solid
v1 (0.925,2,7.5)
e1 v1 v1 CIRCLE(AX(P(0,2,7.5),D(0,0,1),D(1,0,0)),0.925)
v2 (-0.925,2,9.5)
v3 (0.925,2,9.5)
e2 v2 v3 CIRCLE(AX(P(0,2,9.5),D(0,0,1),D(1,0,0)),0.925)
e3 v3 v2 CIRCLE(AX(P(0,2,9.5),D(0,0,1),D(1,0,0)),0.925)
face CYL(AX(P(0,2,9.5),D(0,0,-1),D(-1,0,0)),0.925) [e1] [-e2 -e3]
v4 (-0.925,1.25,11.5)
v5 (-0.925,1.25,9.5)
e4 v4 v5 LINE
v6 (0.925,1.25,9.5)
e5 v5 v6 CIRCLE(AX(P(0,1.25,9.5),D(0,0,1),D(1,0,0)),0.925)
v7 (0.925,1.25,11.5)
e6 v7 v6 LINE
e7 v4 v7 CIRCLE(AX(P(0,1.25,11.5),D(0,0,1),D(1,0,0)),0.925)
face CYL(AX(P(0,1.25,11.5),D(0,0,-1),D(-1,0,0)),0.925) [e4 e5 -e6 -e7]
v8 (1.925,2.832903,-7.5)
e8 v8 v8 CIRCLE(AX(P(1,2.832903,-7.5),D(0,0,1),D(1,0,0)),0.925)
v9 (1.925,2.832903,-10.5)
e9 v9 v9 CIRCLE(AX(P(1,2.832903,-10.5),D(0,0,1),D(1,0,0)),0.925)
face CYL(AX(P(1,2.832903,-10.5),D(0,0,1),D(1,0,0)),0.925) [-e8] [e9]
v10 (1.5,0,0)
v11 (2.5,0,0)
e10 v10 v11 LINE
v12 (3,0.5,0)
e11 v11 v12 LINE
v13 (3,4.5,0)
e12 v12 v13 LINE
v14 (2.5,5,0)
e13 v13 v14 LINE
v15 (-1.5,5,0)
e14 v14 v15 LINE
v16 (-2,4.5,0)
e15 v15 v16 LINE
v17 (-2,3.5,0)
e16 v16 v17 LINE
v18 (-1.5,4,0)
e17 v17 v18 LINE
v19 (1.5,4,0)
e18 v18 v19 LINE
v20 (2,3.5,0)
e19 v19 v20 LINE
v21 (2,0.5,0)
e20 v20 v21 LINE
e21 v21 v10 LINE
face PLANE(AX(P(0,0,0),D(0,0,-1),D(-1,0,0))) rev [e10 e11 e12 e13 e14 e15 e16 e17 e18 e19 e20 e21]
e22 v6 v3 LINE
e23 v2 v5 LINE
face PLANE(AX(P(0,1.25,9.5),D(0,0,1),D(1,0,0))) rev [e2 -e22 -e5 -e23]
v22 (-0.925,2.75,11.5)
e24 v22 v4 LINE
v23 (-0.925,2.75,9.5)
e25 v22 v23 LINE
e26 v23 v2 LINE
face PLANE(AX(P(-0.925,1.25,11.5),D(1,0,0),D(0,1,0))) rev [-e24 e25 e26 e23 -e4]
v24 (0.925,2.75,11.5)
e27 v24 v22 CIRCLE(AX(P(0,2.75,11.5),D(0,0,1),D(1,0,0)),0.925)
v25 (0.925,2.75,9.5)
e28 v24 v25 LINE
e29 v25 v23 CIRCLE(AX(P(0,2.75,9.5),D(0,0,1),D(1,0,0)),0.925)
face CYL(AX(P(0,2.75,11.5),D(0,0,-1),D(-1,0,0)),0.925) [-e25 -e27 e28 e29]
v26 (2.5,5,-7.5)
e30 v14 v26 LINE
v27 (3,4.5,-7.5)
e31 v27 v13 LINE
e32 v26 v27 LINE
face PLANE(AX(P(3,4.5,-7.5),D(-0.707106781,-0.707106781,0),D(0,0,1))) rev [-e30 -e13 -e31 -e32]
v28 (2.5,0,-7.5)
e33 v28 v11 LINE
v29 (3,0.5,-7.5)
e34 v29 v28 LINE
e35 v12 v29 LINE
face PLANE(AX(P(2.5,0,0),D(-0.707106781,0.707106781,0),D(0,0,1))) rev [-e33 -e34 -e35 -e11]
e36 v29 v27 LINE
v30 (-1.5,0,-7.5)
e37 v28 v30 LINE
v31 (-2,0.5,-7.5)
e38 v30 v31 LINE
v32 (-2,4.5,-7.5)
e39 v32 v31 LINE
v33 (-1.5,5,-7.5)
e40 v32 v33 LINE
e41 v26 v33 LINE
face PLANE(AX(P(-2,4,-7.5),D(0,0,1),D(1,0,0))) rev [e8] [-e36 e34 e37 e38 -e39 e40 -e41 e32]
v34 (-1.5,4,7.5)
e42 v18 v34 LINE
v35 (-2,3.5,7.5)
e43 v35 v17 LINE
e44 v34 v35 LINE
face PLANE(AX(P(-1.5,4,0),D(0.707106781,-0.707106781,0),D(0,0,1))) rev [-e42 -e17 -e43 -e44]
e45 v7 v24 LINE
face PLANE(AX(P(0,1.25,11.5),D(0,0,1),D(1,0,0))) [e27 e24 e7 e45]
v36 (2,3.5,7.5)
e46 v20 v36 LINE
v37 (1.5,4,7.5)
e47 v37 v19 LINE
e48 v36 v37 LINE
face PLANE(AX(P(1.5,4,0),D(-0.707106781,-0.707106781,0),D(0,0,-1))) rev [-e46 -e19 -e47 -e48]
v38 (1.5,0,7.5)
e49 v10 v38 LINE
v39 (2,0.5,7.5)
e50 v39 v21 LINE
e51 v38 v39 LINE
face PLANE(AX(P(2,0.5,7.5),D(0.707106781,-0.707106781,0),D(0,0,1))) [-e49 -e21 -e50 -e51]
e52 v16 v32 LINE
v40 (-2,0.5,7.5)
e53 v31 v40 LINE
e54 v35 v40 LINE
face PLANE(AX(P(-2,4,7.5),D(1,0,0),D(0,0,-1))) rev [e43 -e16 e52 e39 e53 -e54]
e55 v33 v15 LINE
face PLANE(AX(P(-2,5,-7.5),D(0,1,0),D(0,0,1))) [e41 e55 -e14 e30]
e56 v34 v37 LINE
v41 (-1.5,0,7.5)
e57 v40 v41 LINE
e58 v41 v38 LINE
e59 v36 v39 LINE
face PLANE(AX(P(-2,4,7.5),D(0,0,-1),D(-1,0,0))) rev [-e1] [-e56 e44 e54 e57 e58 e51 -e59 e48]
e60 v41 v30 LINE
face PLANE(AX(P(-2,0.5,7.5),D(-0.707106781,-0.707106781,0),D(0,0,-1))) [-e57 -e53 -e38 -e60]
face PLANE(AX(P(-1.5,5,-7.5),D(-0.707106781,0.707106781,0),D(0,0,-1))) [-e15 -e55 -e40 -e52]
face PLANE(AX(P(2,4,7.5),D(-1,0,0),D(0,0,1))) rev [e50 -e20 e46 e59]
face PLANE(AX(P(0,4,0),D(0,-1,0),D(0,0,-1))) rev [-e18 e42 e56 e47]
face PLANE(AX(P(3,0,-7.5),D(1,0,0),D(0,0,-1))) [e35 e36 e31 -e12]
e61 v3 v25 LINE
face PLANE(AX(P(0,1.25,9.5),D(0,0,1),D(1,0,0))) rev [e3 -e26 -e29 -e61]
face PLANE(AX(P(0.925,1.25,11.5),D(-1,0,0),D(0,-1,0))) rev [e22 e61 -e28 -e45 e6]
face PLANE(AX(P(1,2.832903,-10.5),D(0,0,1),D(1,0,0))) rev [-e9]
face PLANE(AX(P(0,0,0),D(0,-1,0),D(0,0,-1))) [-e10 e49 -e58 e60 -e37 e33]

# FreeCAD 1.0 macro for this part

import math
import FreeCAD as App
import Part
import Sketcher
from FreeCAD import Vector
Q = App.Units.Quantity


def edges_at(feature, points):
    """Names of the edges that pass closest to the given points."""
    edges = feature.Shape.Edges
    near = lambda p: min(range(len(edges)), key=lambda i: edges[i].distToShape(Part.Vertex(*p))[0])
    return sorted({f"Edge{near(p) + 1}" for p in points})

doc = App.newDocument("Part")
body = doc.addObject("PartDesign::Body", "Body")

sketch1 = body.newObject("Sketcher::SketchObject", "Sketch")
sketch1.AttachmentSupport = (doc.getObject("XZ_Plane"), [""])
sketch1.MapMode = "FlatFace"
sketch1.addGeometry([
    Part.LineSegment(Vector(-2, -7.5, 0), Vector(-2, 7.5, 0)),
    Part.LineSegment(Vector(-2, 7.5, 0), Vector(2, 7.5, 0)),
    Part.LineSegment(Vector(2, 7.5, 0), Vector(2, -7.5, 0)),
    Part.LineSegment(Vector(2, -7.5, 0), Vector(-2, -7.5, 0)),
], False)
sketch1.addConstraint([
    Sketcher.Constraint("Coincident", 0, 2, 1, 1),
    Sketcher.Constraint("Coincident", 1, 2, 2, 1),
    Sketcher.Constraint("Coincident", 2, 2, 3, 1),
    Sketcher.Constraint("Coincident", 3, 2, 0, 1),
    Sketcher.Constraint("Vertical", 0),
    Sketcher.Constraint("Horizontal", 1),
    Sketcher.Constraint("Vertical", 2),
    Sketcher.Constraint("Horizontal", 3),
    Sketcher.Constraint("Symmetric", 0, 2, 2, 2, -1, 1),
    Sketcher.Constraint("DistanceX", 1, 1, 1, 2, Q("4 mm")),
    Sketcher.Constraint("DistanceY", 0, 1, 0, 2, Q("15 mm")),
])
pad1 = body.newObject("PartDesign::Pad", "Pad")
pad1.Profile = sketch1
pad1.Length = 4
pad1.Reversed = True

sketch2 = body.newObject("Sketcher::SketchObject", "Sketch001")
sketch2.AttachmentSupport = (doc.getObject("XY_Plane"), [""])
sketch2.MapMode = "FlatFace"
sketch2.AttachmentOffset = App.Placement(Vector(0, 0, 7.5), App.Rotation())
sketch2.addGeometry(Part.Circle(Vector(0, 2, 0), Vector(0, 0, 1), 0.9), False)
sketch2.addConstraint([
    Sketcher.Constraint("PointOnObject", 0, 3, -2),
    Sketcher.Constraint("Diameter", 0, Q("1.85 mm")),
    Sketcher.Constraint("DistanceY", -1, 1, 0, 3, Q("2 mm")),
])
pad2 = body.newObject("PartDesign::Pad", "Pad001")
pad2.Profile = sketch2
pad2.Length = 2

sketch3 = body.newObject("Sketcher::SketchObject", "Sketch002")
sketch3.AttachmentSupport = (doc.getObject("XY_Plane"), [""])
sketch3.MapMode = "FlatFace"
sketch3.AttachmentOffset = App.Placement(Vector(0, 0, 9.5), App.Rotation())
sketch3.addGeometry([
    Part.LineSegment(Vector(-0.9, 2.8, 0), Vector(-0.9, 1.2, 0)),
    Part.ArcOfCircle(Part.Circle(Vector(0, 1.2, 0), Vector(0, 0, 1), 0.9), math.radians(180), math.radians(360)),
    Part.LineSegment(Vector(0.9, 1.2, 0), Vector(0.9, 2.8, 0)),
    Part.ArcOfCircle(Part.Circle(Vector(0, 2.8, 0), Vector(0, 0, 1), 0.9), math.radians(0), math.radians(180)),
], False)
sketch3.addConstraint([
    Sketcher.Constraint("Tangent", 0, 2, 1, 1),
    Sketcher.Constraint("Tangent", 1, 2, 2, 1),
    Sketcher.Constraint("Tangent", 2, 2, 3, 1),
    Sketcher.Constraint("Tangent", 3, 2, 0, 1),
    Sketcher.Constraint("Vertical", 0),
    Sketcher.Constraint("Vertical", 2),
    Sketcher.Constraint("PointOnObject", 1, 3, -2),
    Sketcher.Constraint("DistanceY", 0, 2, 0, 1, Q("1.5 mm")),
    Sketcher.Constraint("Radius", 1, Q("0.925 mm")),
    Sketcher.Constraint("DistanceY", -1, 1, 1, 3, Q("1.25 mm")),
])
pad3 = body.newObject("PartDesign::Pad", "Pad002")
pad3.Profile = sketch3
pad3.Length = 2

sketch4 = body.newObject("Sketcher::SketchObject", "Sketch003")
sketch4.AttachmentSupport = (doc.getObject("XY_Plane"), [""])
sketch4.MapMode = "FlatFace"
sketch4.addGeometry([
    Part.LineSegment(Vector(-2, 5, 0), Vector(-2, 0, 0)),
    Part.LineSegment(Vector(-2, 0, 0), Vector(3, 0, 0)),
    Part.LineSegment(Vector(3, 0, 0), Vector(3, 5, 0)),
    Part.LineSegment(Vector(3, 5, 0), Vector(-2, 5, 0)),
], False)
sketch4.addConstraint([
    Sketcher.Constraint("Coincident", 0, 2, 1, 1),
    Sketcher.Constraint("Coincident", 1, 2, 2, 1),
    Sketcher.Constraint("Coincident", 2, 2, 3, 1),
    Sketcher.Constraint("Coincident", 3, 2, 0, 1),
    Sketcher.Constraint("Vertical", 0),
    Sketcher.Constraint("Horizontal", 1),
    Sketcher.Constraint("Vertical", 2),
    Sketcher.Constraint("Horizontal", 3),
    Sketcher.Constraint("PointOnObject", 0, 2, -1),
    Sketcher.Constraint("Equal", 3, 0),
    Sketcher.Constraint("DistanceX", 1, 1, 1, 2, Q("5 mm")),
    Sketcher.Constraint("DistanceX", 0, 2, -1, 1, Q("2 mm")),
])
pad4 = body.newObject("PartDesign::Pad", "Pad003")
pad4.Profile = sketch4
pad4.Length = 7.5
pad4.Reversed = True

sketch5 = body.newObject("Sketcher::SketchObject", "Sketch004")
sketch5.AttachmentSupport = (doc.getObject("XY_Plane"), [""])
sketch5.MapMode = "FlatFace"
sketch5.AttachmentOffset = App.Placement(Vector(0, 0, 7.5), App.Rotation())
sketch5.addGeometry(Part.Circle(Vector(1, 2.8, 0), Vector(0, 0, 1), 0.9), False)
sketch5.addConstraint([
    Sketcher.Constraint("Diameter", 0, Q("1.85 mm")),
    Sketcher.Constraint("DistanceX", -1, 1, 0, 3, Q("1 mm")),
    Sketcher.Constraint("DistanceY", -1, 1, 0, 3, Q("2.832903 mm")),
])
pad5 = body.newObject("PartDesign::Pad", "Pad004")
pad5.Profile = sketch5
pad5.Length = 18
pad5.Reversed = True
doc.recompute()

chamfer = body.newObject("PartDesign::Chamfer", "Chamfer")
chamfer.Base = (pad5, edges_at(pad5, [
    (-2, 4, 3.75),
    (3, 0, -3.75),
    (-2, 5, -3.75),
    (3, 5, -3.75),
    (2, 4, 3.75),
    (-2, 0, 0),
    (2, 0, 3.75),
]))
chamfer.Size = 0.5

doc.recompute()
